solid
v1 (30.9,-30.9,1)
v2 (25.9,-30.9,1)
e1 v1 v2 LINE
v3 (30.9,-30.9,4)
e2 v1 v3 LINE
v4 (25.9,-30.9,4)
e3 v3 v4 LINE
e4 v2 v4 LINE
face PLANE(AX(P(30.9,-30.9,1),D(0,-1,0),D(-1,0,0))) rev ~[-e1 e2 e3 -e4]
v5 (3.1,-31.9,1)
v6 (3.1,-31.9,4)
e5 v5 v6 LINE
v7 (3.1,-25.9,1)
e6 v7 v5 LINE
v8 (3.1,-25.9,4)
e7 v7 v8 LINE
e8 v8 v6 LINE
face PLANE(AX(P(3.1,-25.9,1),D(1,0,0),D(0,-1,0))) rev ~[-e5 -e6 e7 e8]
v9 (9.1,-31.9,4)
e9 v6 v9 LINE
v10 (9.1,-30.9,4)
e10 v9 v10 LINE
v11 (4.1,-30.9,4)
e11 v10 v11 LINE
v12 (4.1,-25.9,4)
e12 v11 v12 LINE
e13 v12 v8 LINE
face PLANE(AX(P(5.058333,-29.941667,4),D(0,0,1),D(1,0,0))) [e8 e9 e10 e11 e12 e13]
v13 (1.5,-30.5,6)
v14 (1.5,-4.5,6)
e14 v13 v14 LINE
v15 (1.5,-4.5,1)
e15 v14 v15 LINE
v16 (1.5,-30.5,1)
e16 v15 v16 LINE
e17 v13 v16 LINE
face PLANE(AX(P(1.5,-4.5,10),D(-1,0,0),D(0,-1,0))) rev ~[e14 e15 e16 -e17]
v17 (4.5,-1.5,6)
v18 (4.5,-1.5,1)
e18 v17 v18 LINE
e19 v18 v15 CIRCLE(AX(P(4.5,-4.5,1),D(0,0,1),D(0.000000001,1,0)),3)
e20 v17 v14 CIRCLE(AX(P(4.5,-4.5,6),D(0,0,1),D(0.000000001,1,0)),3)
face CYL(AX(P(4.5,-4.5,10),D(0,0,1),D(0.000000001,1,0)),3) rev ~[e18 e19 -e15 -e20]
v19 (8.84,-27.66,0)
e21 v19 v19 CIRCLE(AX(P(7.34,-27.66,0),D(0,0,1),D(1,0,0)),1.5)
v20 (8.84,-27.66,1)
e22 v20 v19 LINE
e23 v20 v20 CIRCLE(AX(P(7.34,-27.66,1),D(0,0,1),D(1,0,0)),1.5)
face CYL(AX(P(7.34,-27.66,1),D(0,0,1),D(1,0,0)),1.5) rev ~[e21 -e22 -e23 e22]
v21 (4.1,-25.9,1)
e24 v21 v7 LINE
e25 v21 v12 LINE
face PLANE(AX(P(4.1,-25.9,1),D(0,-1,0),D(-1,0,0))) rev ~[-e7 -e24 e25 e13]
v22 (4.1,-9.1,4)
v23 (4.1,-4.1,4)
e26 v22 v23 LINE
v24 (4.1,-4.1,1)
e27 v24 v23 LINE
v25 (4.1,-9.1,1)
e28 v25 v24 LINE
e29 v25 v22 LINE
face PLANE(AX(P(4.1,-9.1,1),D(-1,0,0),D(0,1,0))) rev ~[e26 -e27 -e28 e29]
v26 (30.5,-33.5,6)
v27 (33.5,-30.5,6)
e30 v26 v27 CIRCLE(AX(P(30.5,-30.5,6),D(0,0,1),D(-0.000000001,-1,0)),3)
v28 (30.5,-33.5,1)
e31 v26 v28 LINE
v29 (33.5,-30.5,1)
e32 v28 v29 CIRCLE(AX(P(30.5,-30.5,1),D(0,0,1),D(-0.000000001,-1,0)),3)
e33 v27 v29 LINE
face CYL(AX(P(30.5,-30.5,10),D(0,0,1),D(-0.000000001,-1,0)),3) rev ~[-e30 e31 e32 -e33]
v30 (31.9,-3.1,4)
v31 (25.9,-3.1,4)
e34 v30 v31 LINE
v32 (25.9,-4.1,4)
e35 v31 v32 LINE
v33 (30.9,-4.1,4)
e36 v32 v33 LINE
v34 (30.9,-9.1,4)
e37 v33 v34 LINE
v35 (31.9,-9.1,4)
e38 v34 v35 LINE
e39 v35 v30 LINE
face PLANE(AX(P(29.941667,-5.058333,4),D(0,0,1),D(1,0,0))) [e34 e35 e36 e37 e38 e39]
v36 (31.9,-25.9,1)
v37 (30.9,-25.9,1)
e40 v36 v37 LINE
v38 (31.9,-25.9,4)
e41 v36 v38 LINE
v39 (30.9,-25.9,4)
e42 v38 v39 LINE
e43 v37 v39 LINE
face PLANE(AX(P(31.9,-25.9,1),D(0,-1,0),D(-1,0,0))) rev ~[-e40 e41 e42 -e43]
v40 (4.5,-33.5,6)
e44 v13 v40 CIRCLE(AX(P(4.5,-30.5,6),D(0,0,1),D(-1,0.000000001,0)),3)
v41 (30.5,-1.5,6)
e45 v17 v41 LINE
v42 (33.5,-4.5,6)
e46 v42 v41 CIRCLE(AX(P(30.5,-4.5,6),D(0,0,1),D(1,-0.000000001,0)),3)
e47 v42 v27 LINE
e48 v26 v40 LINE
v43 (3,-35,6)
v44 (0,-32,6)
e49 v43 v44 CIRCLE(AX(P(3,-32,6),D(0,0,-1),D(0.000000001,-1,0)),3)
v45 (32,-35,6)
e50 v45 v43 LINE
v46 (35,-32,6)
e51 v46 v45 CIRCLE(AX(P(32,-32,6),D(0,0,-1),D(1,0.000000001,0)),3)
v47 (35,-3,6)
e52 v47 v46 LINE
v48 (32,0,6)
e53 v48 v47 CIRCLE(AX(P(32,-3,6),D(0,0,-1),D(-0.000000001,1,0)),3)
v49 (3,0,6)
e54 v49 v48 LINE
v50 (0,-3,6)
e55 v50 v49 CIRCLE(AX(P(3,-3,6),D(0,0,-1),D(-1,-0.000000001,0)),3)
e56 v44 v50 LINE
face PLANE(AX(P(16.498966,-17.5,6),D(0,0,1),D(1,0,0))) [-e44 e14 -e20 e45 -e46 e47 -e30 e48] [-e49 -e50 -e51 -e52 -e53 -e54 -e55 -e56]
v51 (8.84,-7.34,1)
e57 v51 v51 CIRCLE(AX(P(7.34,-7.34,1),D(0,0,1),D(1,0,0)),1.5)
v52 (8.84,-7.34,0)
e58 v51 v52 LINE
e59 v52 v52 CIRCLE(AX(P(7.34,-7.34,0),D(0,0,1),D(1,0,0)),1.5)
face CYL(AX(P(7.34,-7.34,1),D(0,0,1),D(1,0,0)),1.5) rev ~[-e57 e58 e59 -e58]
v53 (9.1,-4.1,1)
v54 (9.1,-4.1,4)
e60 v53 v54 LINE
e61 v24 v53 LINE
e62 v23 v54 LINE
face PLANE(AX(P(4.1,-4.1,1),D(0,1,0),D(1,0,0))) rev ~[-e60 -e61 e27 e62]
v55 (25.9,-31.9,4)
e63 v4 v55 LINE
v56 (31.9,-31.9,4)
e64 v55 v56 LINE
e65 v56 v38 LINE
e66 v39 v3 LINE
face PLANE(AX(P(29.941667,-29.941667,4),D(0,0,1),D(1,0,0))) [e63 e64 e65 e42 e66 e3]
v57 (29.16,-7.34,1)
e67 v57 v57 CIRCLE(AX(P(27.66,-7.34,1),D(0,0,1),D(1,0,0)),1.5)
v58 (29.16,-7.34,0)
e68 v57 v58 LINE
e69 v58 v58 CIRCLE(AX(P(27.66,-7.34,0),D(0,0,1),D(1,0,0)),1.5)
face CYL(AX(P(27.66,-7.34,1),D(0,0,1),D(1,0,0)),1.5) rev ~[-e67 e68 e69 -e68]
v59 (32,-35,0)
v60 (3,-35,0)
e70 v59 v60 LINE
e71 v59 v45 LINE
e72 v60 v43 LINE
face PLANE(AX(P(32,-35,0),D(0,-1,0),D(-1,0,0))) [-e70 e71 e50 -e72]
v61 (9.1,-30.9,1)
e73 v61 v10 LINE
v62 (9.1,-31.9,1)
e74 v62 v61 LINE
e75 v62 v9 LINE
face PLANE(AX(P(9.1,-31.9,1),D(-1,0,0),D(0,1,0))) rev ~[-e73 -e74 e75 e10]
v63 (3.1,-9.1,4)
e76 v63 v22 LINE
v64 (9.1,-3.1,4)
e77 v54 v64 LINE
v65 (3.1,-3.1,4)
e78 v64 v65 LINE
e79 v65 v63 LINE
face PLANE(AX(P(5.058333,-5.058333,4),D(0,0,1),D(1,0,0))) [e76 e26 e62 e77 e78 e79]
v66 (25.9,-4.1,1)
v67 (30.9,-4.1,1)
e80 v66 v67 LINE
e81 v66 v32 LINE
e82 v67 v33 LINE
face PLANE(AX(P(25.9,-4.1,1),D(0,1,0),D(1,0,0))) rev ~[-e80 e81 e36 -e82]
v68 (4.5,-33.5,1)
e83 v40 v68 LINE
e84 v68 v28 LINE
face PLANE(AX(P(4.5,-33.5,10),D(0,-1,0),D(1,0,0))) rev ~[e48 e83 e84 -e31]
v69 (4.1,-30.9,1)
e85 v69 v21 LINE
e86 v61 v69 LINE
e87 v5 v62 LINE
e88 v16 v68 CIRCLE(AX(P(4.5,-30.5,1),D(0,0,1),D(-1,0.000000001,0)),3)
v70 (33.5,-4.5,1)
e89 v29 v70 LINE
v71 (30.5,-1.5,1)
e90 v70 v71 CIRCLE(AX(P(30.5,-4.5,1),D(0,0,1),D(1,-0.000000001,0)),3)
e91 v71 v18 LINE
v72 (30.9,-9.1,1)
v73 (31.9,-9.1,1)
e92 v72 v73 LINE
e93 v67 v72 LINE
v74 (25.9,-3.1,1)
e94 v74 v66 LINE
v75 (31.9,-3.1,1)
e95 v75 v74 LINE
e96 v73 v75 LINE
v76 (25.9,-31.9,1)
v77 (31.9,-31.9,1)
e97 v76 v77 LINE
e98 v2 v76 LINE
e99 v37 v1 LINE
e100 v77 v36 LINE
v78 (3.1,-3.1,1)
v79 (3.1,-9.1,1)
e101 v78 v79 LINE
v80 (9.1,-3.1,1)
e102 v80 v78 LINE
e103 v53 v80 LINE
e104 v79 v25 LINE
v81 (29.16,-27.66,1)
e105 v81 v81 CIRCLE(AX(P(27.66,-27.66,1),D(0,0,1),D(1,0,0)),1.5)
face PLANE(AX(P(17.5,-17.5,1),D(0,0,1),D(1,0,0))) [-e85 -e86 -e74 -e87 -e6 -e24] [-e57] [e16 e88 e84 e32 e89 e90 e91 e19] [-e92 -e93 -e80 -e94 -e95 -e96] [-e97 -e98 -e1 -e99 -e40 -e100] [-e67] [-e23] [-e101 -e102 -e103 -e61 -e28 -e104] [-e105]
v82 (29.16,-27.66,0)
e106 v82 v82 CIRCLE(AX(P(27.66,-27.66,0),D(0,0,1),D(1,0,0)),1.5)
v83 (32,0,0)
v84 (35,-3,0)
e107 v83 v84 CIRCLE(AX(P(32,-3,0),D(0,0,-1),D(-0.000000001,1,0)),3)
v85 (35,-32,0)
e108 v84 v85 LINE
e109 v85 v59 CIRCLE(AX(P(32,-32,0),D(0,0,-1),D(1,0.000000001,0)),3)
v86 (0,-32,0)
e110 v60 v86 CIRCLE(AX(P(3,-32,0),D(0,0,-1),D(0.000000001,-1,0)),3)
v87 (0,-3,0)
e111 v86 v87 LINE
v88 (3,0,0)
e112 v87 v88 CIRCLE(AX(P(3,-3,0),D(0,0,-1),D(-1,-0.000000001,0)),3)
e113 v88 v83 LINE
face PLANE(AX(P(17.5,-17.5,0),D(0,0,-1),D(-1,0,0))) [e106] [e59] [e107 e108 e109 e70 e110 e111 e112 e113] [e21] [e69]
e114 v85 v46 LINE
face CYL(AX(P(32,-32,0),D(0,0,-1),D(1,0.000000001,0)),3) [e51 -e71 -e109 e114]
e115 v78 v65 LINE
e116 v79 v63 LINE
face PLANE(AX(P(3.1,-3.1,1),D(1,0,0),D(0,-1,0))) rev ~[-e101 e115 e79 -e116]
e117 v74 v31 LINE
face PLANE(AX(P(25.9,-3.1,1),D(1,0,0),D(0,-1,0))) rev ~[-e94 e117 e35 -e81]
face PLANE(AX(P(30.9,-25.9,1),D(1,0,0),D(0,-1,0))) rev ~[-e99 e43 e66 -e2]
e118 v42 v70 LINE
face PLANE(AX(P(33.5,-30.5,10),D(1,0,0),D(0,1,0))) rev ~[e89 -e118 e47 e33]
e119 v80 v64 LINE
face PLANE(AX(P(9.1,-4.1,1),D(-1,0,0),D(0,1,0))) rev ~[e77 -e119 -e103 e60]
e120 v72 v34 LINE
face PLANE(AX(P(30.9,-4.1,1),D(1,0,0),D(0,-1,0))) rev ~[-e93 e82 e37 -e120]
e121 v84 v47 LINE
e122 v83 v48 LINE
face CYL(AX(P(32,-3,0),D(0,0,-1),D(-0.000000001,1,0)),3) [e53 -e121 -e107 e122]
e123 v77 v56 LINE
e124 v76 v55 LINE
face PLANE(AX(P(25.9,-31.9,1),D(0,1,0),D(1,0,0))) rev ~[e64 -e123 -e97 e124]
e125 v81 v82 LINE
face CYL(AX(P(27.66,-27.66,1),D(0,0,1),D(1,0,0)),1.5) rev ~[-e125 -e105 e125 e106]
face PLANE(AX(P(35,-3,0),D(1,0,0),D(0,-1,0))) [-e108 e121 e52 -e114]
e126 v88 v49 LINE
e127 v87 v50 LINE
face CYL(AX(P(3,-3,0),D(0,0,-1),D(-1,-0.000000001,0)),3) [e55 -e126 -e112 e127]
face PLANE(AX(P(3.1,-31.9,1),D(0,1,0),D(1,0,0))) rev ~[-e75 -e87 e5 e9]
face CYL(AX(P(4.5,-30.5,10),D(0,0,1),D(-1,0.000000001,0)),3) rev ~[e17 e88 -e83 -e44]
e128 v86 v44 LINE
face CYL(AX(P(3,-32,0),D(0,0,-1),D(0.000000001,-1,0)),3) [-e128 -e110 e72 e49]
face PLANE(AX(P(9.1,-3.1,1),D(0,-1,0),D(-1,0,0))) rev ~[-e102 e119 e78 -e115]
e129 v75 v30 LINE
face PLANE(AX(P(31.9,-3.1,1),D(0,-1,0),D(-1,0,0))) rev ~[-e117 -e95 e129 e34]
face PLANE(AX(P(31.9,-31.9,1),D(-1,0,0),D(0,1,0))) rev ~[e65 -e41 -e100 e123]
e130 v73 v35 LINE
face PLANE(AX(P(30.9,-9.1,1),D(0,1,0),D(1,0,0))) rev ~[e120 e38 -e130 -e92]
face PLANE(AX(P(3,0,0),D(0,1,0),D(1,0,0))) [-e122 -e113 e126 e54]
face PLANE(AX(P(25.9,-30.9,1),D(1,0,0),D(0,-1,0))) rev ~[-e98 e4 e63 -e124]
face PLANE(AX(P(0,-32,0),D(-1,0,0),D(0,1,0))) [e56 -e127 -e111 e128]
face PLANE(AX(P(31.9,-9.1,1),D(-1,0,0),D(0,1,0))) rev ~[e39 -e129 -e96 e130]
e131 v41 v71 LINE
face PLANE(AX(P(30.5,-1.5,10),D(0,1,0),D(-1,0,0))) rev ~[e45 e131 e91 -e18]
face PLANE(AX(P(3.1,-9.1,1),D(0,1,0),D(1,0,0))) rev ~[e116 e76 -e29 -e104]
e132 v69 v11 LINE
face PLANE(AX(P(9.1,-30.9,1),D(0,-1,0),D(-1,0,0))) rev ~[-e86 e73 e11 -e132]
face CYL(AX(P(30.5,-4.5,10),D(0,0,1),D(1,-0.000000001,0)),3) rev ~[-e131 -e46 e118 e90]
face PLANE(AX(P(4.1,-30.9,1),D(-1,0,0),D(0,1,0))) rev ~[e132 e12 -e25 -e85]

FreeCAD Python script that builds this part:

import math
import FreeCAD as App
import Part
import Sketcher

V = App.Vector


def add_polygon(sketch, points):
    """Adds a closed chain of lines whose ends are joined by coincident constraints."""
    first, n = sketch.GeometryCount, len(points)
    for a, b in zip(points, points[1:] + points[:1]):
        sketch.addGeometry(Part.LineSegment(App.Vector(*a, 0), App.Vector(*b, 0)), False)
    for i in range(n):
        sketch.addConstraint(Sketcher.Constraint("Coincident", first + i, 2, first + (i + 1) % n, 1))

doc = App.newDocument("Part")
body = doc.addObject("PartDesign::Body", "Body")

# Sketch on XY plane
sketch1 = doc.addObject("Sketcher::SketchObject", "Sketch")
body.addObject(sketch1)
sketch1.AttachmentSupport = (doc.XY_Plane, [""])
sketch1.MapMode = "FlatFace"
sketch1.addGeometry([
    Part.LineSegment(V(32, 0, 0), V(3, 0, 0)),  # 0
    Part.ArcOfCircle(Part.Circle(V(3, -3, 0), V(0, 0, 1), 3), math.radians(90), math.radians(180)),  # 1
    Part.LineSegment(V(0, -3, 0), V(0, -32, 0)),  # 2
    Part.ArcOfCircle(Part.Circle(V(3, -32, 0), V(0, 0, 1), 3), math.radians(180), math.radians(270)),  # 3
    Part.LineSegment(V(3, -35, 0), V(32, -35, 0)),  # 4
    Part.ArcOfCircle(Part.Circle(V(32, -32, 0), V(0, 0, 1), 3), math.radians(-90), math.radians(0)),  # 5
    Part.LineSegment(V(35, -32, 0), V(35, -3, 0)),  # 6
    Part.ArcOfCircle(Part.Circle(V(32, -3, 0), V(0, 0, 1), 3), math.radians(0), math.radians(90)),  # 7
], False)
sketch1.addConstraint([
    Sketcher.Constraint("Tangent", 0, 2, 1, 1),
    Sketcher.Constraint("Tangent", 1, 2, 2, 1),
    Sketcher.Constraint("Tangent", 2, 2, 3, 1),
    Sketcher.Constraint("Tangent", 3, 2, 4, 1),
    Sketcher.Constraint("Tangent", 4, 2, 5, 1),
    Sketcher.Constraint("Tangent", 5, 2, 6, 1),
    Sketcher.Constraint("Tangent", 6, 2, 7, 1),
    Sketcher.Constraint("Tangent", 7, 2, 0, 1),
    Sketcher.Constraint("Horizontal", 0),
    Sketcher.Constraint("Vertical", 2),
    Sketcher.Constraint("Horizontal", 4),
    Sketcher.Constraint("Vertical", 6),
    Sketcher.Constraint("Equal", 1, 3),
    Sketcher.Constraint("Equal", 3, 5),
    Sketcher.Constraint("Equal", 5, 7),
    Sketcher.Constraint("PointOnObject", 0, 2, -1),
    Sketcher.Constraint("PointOnObject", 1, 2, -2),
    Sketcher.Constraint("Equal", 4, 2),
    Sketcher.Constraint("Radius", 1, 3.0),
    Sketcher.Constraint("DistanceX", 0, 2, 0, 1, 29.0),
])
pad1 = doc.addObject("PartDesign::Pad", "Pad")
body.addObject(pad1)
pad1.Profile = sketch1
pad1.Length = 10

# Sketch on XY plane
sketch2 = doc.addObject("Sketcher::SketchObject", "Sketch001")
body.addObject(sketch2)
sketch2.AttachmentSupport = (doc.XY_Plane, [""])
sketch2.MapMode = "FlatFace"
sketch2.AttachmentOffset = App.Placement(V(0, 0, 10), App.Rotation())
sketch2.addGeometry([
    Part.LineSegment(V(1.5, -4.5, 0), V(1.5, -30.5, 0)),  # 0
    Part.ArcOfCircle(Part.Circle(V(4.5, -30.5, 0), V(0, 0, 1), 3), math.radians(180), math.radians(270)),  # 1
    Part.LineSegment(V(4.5, -33.5, 0), V(30.5, -33.5, 0)),  # 2
    Part.ArcOfCircle(Part.Circle(V(30.5, -30.5, 0), V(0, 0, 1), 3), math.radians(-90), math.radians(0)),  # 3
    Part.LineSegment(V(33.5, -30.5, 0), V(33.5, -4.5, 0)),  # 4
    Part.ArcOfCircle(Part.Circle(V(30.5, -4.5, 0), V(0, 0, 1), 3), math.radians(0), math.radians(90)),  # 5
    Part.LineSegment(V(30.5, -1.5, 0), V(4.5, -1.5, 0)),  # 6
    Part.ArcOfCircle(Part.Circle(V(4.5, -4.5, 0), V(0, 0, 1), 3), math.radians(90), math.radians(180)),  # 7
], False)
sketch2.addConstraint([
    Sketcher.Constraint("Tangent", 0, 2, 1, 1),
    Sketcher.Constraint("Tangent", 1, 2, 2, 1),
    Sketcher.Constraint("Tangent", 2, 2, 3, 1),
    Sketcher.Constraint("Tangent", 3, 2, 4, 1),
    Sketcher.Constraint("Tangent", 4, 2, 5, 1),
    Sketcher.Constraint("Tangent", 5, 2, 6, 1),
    Sketcher.Constraint("Tangent", 6, 2, 7, 1),
    Sketcher.Constraint("Tangent", 7, 2, 0, 1),
    Sketcher.Constraint("Vertical", 0),
    Sketcher.Constraint("Horizontal", 2),
    Sketcher.Constraint("Vertical", 4),
    Sketcher.Constraint("Horizontal", 6),
    Sketcher.Constraint("Equal", 1, 3),
    Sketcher.Constraint("Equal", 3, 5),
    Sketcher.Constraint("Equal", 5, 7),
    Sketcher.Constraint("Equal", 6, 0),
    Sketcher.Constraint("Radius", 1, 3.0),
    Sketcher.Constraint("DistanceX", 2, 1, 2, 2, 26.0),
    Sketcher.Constraint("DistanceX", -1, 1, 1, 3, 4.5),
    Sketcher.Constraint("DistanceY", 1, 3, -1, 1, 30.5),
])
pocket1 = doc.addObject("PartDesign::Pocket", "Pocket")
body.addObject(pocket1)
pocket1.Profile = sketch2
pocket1.Length = 9

# Sketch on XY plane
sketch3 = doc.addObject("Sketcher::SketchObject", "Sketch002")
body.addObject(sketch3)
sketch3.AttachmentSupport = (doc.XY_Plane, [""])
sketch3.MapMode = "FlatFace"
sketch3.AttachmentOffset = App.Placement(V(0, 0, 1), App.Rotation())
sketch3.addGeometry([
    Part.Circle(V(7.3, -7.3, 0), V(0, 0, 1), 1.5),
    Part.Circle(V(7.3, -27.7, 0), V(0, 0, 1), 1.5),
    Part.Circle(V(27.7, -27.7, 0), V(0, 0, 1), 1.5),
    Part.Circle(V(27.7, -7.3, 0), V(0, 0, 1), 1.5),
], False)
sketch3.addConstraint([
    Sketcher.Constraint("Equal", 0, 1),
    Sketcher.Constraint("Equal", 1, 2),
    Sketcher.Constraint("Equal", 2, 3),
    Sketcher.Constraint("Horizontal", 1, 3, 2, 3),
    Sketcher.Constraint("Horizontal", 0, 3, 3, 3),
    Sketcher.Constraint("Vertical", 0, 3, 1, 3),
    Sketcher.Constraint("Vertical", 2, 3, 3, 3),
    Sketcher.Constraint("Diameter", 0, 3.0),
    Sketcher.Constraint("DistanceX", -1, 1, 0, 3, 7.34),
    Sketcher.Constraint("DistanceY", 0, 3, -1, 1, 7.34),
    Sketcher.Constraint("DistanceY", 1, 3, -1, 1, 27.66),
    Sketcher.Constraint("DistanceX", -1, 1, 2, 3, 27.66),
])
pocket2 = doc.addObject("PartDesign::Pocket", "Pocket001")
body.addObject(pocket2)
pocket2.Profile = sketch3
pocket2.Type = "ThroughAll"

# Sketch on XY plane
sketch4 = doc.addObject("Sketcher::SketchObject", "Sketch003")
body.addObject(sketch4)
sketch4.AttachmentSupport = (doc.XY_Plane, [""])
sketch4.MapMode = "FlatFace"
sketch4.AttachmentOffset = App.Placement(V(0, 0, 1), App.Rotation())
add_polygon(sketch4, [(3.1, -3.1), (3.1, -9.1), (4.1, -9.1), (4.1, -4.1), (9.1, -4.1), (9.1, -3.1)])  # lines 0-5
add_polygon(sketch4, [(30.9, -9.1), (31.9, -9.1), (31.9, -3.1), (25.9, -3.1), (25.9, -4.1), (30.9, -4.1)])  # lines 6-11
add_polygon(sketch4, [(25.9, -30.9), (25.9, -31.9), (31.9, -31.9), (31.9, -25.9), (30.9, -25.9), (30.9, -30.9)])  # lines 12-17
add_polygon(sketch4, [(3.1, -25.9), (3.1, -31.9), (9.1, -31.9), (9.1, -30.9), (4.1, -30.9), (4.1, -25.9)])  # lines 18-23
sketch4.addConstraint([
    Sketcher.Constraint("Vertical", 0),
    Sketcher.Constraint("Horizontal", 1),
    Sketcher.Constraint("Vertical", 2),
    Sketcher.Constraint("Horizontal", 3),
    Sketcher.Constraint("Vertical", 4),
    Sketcher.Constraint("Horizontal", 5),
    Sketcher.Constraint("Horizontal", 6),
    Sketcher.Constraint("Vertical", 7),
    Sketcher.Constraint("Horizontal", 8),
    Sketcher.Constraint("Vertical", 9),
    Sketcher.Constraint("Horizontal", 10),
    Sketcher.Constraint("Vertical", 11),
    Sketcher.Constraint("Vertical", 12),
    Sketcher.Constraint("Horizontal", 13),
    Sketcher.Constraint("Vertical", 14),
    Sketcher.Constraint("Horizontal", 15),
    Sketcher.Constraint("Vertical", 16),
    Sketcher.Constraint("Horizontal", 17),
    Sketcher.Constraint("Vertical", 18),
    Sketcher.Constraint("Horizontal", 19),
    Sketcher.Constraint("Vertical", 20),
    Sketcher.Constraint("Horizontal", 21),
    Sketcher.Constraint("Vertical", 22),
    Sketcher.Constraint("Horizontal", 23),
    Sketcher.Constraint("Horizontal", 1, 2, 6, 2),
    Sketcher.Constraint("Horizontal", 5, 2, 7, 2),
    Sketcher.Constraint("Horizontal", 3, 2, 9, 2),
    Sketcher.Constraint("Horizontal", 13, 2, 18, 2),
    Sketcher.Constraint("Horizontal", 17, 2, 20, 2),
    Sketcher.Constraint("Horizontal", 15, 2, 22, 2),
    Sketcher.Constraint("Vertical", 9, 2, 12, 2),
    Sketcher.Constraint("Vertical", 7, 2, 13, 2),
    Sketcher.Constraint("Vertical", 11, 2, 15, 2),
    Sketcher.Constraint("Vertical", 5, 2, 18, 2),
    Sketcher.Constraint("Vertical", 4, 2, 19, 2),
    Sketcher.Constraint("Vertical", 2, 2, 21, 2),
    Sketcher.Constraint("Equal", 1, 6),
    Sketcher.Constraint("Equal", 5, 8),
    Sketcher.Constraint("Equal", 19, 0),
    Sketcher.Constraint("Equal", 21, 2),
    Sketcher.Constraint("Equal", 9, 12),
    Sketcher.Constraint("Equal", 7, 14),
    Sketcher.Constraint("DistanceX", 1, 1, 1, 2, 1.0),
    Sketcher.Constraint("DistanceX", 3, 1, 3, 2, 5.0),
    Sketcher.Constraint("DistanceX", -1, 1, 0, 2, 3.1),
    Sketcher.Constraint("DistanceY", 0, 2, -1, 1, 9.1),
    Sketcher.Constraint("DistanceX", -1, 1, 6, 2, 31.9),
    Sketcher.Constraint("DistanceY", 12, 2, -1, 1, 31.9),
])
pad2 = doc.addObject("PartDesign::Pad", "Pad001")
body.addObject(pad2)
pad2.Profile = sketch4
pad2.Length = 3

# Sketch on XY plane
sketch5 = doc.addObject("Sketcher::SketchObject", "Sketch004")
body.addObject(sketch5)
sketch5.AttachmentSupport = (doc.XY_Plane, [""])
sketch5.MapMode = "FlatFace"
sketch5.AttachmentOffset = App.Placement(V(0, 0, 10), App.Rotation())
sketch5.addGeometry(Part.Circle(V(16, -18, 0), V(0, 0, 1), 25), False)
sketch5.addConstraint([
    Sketcher.Constraint("DistanceY", 0, 3, -1, 1, 17.5),
    Sketcher.Constraint("Diameter", 0, 49.820453),
    Sketcher.Constraint("DistanceX", -1, 1, 0, 3, 16.498966),
])
pocket3 = doc.addObject("PartDesign::Pocket", "Pocket002")
body.addObject(pocket3)
pocket3.Profile = sketch5
pocket3.Length = 4

doc.recompute()
